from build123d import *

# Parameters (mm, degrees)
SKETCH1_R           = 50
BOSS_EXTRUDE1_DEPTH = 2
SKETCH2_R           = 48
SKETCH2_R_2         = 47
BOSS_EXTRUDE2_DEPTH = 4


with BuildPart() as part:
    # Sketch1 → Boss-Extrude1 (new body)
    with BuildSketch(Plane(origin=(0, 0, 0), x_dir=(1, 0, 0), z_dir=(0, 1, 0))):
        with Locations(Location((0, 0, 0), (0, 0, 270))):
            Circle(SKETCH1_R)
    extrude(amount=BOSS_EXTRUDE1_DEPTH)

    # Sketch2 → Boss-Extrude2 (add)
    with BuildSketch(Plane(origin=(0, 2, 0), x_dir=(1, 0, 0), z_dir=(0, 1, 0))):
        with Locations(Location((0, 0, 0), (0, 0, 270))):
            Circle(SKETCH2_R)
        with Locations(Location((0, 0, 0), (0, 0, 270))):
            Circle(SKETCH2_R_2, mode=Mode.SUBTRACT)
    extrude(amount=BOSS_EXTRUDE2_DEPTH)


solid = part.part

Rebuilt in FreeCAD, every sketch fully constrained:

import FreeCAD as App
import Part
import Sketcher
from FreeCAD import Vector

doc = App.newDocument("Part")
params = doc.addObject("Spreadsheet::Sheet", "Params")
for row, (alias, value) in enumerate([
    ("sketch1_diameter", "100 mm"),
    ("pad1_length", "2 mm"),
    ("sketch2_diameter", "96 mm"),
    ("sketch2_diameter2", "94 mm"),
    ("pad2_length", "4 mm"),
], start=1):
    params.set(f"A{row}", alias)
    params.set(f"B{row}", "=" + value)
    params.setAlias(f"B{row}", alias)

body = doc.addObject("PartDesign::Body", "Body")

# Sketch on XZ plane
sketch1 = doc.addObject("Sketcher::SketchObject", "Sketch")
body.addObject(sketch1)
sketch1.AttachmentSupport = (doc.XZ_Plane, [""])
sketch1.MapMode = "FlatFace"
sketch1.addGeometry(Part.Circle(Vector(0, 0, 0), Vector(0, 0, 1), 50), False)
sketch1.addConstraint(Sketcher.Constraint("Coincident", 0, 3, -1, 1))
sketch1.addConstraint(Sketcher.Constraint("Diameter", 0, 100.0))
sketch1.setExpression("Constraints[1]", "Params.sketch1_diameter")
pad1 = doc.addObject("PartDesign::Pad", "Pad")
body.addObject(pad1)
pad1.Profile = sketch1
pad1.setExpression("Length", "Params.pad1_length")
pad1.Reversed = True

# Sketch on XZ plane
sketch2 = doc.addObject("Sketcher::SketchObject", "Sketch001")
body.addObject(sketch2)
sketch2.AttachmentSupport = (doc.XZ_Plane, [""])
sketch2.MapMode = "FlatFace"
sketch2.AttachmentOffset = App.Placement(Vector(0, 0, -2), App.Rotation())
sketch2.addGeometry(Part.Circle(Vector(0, 0, 0), Vector(0, 0, 1), 48), False)
sketch2.addGeometry(Part.Circle(Vector(0, 0, 0), Vector(0, 0, 1), 47), False)
sketch2.addConstraint(Sketcher.Constraint("Coincident", 0, 3, -1, 1))
sketch2.addConstraint(Sketcher.Constraint("Coincident", 1, 3, -1, 1))
sketch2.addConstraint(Sketcher.Constraint("Diameter", 0, 96.0))
sketch2.addConstraint(Sketcher.Constraint("Diameter", 1, 94.0))
sketch2.setExpression("Constraints[2]", "Params.sketch2_diameter")
sketch2.setExpression("Constraints[3]", "Params.sketch2_diameter2")
pad2 = doc.addObject("PartDesign::Pad", "Pad001")
body.addObject(pad2)
pad2.Profile = sketch2
pad2.setExpression("Length", "Params.pad2_length")
pad2.Reversed = True

doc.recompute()
